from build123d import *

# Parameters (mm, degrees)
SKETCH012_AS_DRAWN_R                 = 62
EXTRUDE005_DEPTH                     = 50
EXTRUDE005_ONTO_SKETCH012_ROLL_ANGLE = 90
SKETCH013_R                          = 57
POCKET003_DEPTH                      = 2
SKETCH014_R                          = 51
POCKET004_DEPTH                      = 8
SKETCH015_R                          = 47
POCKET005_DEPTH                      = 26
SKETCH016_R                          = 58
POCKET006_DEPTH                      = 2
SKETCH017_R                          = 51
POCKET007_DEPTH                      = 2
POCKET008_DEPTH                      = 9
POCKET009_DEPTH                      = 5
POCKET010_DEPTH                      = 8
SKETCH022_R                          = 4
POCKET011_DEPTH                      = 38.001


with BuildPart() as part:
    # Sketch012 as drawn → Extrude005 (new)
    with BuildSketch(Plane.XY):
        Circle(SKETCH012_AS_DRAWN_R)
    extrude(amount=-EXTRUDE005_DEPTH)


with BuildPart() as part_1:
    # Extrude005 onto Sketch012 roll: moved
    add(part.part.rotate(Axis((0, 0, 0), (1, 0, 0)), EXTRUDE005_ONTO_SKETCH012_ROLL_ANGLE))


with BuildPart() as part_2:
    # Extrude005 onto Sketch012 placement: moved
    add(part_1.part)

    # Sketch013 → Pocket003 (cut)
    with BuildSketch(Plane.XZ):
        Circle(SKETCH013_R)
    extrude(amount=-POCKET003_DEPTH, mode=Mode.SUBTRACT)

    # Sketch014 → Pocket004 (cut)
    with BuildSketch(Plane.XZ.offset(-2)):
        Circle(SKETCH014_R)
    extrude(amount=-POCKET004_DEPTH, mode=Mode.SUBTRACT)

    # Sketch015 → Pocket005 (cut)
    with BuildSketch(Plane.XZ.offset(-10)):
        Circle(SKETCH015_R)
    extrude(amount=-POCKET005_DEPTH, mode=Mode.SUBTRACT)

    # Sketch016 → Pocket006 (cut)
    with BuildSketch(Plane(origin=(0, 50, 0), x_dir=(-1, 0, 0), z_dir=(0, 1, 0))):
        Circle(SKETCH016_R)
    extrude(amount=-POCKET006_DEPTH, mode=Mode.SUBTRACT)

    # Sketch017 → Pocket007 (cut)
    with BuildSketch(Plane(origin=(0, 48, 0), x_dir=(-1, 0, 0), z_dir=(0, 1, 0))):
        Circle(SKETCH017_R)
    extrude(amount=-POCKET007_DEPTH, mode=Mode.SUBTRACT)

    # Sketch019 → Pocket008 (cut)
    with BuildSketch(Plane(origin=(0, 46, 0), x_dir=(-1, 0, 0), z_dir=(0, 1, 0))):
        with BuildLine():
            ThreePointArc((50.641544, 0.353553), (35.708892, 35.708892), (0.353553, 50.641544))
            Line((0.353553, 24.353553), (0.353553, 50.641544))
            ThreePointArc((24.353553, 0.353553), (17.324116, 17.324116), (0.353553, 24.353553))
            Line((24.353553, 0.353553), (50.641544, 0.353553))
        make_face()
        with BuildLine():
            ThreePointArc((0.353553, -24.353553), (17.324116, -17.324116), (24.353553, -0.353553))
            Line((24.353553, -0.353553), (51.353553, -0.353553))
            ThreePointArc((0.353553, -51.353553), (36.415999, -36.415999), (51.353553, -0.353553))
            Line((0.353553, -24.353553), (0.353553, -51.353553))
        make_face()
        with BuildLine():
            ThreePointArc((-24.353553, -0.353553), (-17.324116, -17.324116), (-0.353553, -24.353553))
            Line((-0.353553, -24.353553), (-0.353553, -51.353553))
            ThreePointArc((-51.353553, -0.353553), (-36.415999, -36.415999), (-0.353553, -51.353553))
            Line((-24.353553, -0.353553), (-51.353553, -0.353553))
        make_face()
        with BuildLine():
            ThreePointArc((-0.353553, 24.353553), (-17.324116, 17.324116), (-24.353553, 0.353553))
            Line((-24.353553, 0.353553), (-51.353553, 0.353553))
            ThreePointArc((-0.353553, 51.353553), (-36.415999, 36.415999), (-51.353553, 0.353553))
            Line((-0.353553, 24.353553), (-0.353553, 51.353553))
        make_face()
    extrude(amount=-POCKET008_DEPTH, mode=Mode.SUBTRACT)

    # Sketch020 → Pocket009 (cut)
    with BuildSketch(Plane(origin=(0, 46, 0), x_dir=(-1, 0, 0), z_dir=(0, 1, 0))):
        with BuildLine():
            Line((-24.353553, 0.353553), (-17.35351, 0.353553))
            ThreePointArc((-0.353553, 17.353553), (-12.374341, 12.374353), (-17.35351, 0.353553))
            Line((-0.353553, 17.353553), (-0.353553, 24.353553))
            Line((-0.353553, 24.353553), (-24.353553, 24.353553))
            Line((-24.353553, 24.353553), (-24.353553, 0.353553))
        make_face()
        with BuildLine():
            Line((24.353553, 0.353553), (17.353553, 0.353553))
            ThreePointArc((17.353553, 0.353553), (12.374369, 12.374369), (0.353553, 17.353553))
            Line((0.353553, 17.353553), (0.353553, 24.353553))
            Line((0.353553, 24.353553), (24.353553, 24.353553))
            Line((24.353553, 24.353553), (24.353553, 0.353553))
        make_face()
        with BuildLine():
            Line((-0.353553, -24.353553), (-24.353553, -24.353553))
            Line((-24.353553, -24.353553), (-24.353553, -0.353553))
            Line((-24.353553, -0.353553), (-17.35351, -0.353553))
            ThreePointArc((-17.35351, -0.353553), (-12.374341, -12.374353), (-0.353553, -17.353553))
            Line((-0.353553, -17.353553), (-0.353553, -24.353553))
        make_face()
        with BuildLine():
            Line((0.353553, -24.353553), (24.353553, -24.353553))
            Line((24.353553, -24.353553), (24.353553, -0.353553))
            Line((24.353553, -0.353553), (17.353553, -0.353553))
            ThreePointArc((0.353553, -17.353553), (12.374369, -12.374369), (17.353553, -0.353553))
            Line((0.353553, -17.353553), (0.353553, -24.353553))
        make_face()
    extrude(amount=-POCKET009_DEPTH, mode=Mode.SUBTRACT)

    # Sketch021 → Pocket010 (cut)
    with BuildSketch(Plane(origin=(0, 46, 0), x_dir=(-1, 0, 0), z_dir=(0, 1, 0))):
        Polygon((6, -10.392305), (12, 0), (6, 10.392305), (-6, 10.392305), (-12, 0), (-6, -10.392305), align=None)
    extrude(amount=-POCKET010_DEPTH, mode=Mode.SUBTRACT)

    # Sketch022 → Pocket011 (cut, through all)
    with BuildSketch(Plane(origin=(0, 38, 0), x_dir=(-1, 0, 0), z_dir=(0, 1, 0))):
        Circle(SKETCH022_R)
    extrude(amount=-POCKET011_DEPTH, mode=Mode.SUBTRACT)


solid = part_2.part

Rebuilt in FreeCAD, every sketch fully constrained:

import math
import FreeCAD as App
import Part
import Sketcher
Q = App.Units.Quantity

doc = App.newDocument("Part")
params = doc.addObject("Spreadsheet::Sheet", "Params")
for row, (alias, value) in enumerate([
    ("sketch1_diameter", "124 mm"),
    ("pad1_length", "50 mm"),
    ("sketch2_diameter", "114 mm"),
    ("pocket1_length", "2 mm"),
    ("sketch3_diameter", "102 mm"),
    ("pocket2_length", "8 mm"),
    ("sketch4_diameter", "94 mm"),
    ("pocket3_length", "26 mm"),
    ("sketch5_diameter", "116 mm"),
    ("pocket4_length", "2 mm"),
    ("sketch6_diameter", "102 mm"),
    ("pocket5_length", "2 mm"),
    ("sketch7_radius", "51 mm"),
    ("sketch7_radius2", "23.999999 mm"),
    ("pocket6_length", "9 mm"),
    ("sketch8_radius", "16.999999 mm"),
    ("sketch8_width", "24 mm"),
    ("pocket7_length", "5 mm"),
    ("sketch9_width", "12 mm"),
    ("sketch9_length", "12 mm"),
    ("pocket8_length", "8 mm"),
    ("sketch10_diameter", "8 mm"),
], start=1):
    params.set(f"A{row}", alias)
    params.set(f"B{row}", "=" + value)
    params.setAlias(f"B{row}", alias)

body = doc.addObject("PartDesign::Body", "Body")

# Sketch on XY plane
sketch1 = doc.addObject("Sketcher::SketchObject", "Sketch")
body.addObject(sketch1)
sketch1.AttachmentSupport = (doc.XY_Plane, [""])
sketch1.MapMode = "FlatFace"
sketch1.addGeometry(Part.Circle(App.Vector(0, 0, 0), App.Vector(0, 0, 1), 62), False)
sketch1.addConstraint([
    Sketcher.Constraint("Coincident", 0, 3, -1, 1),
    Sketcher.Constraint("Diameter", 0, Q("124 mm")),
])
sketch1.setExpression("Constraints[1]", "Params.sketch1_diameter")
pad1 = doc.addObject("PartDesign::Pad", "Pad")
body.addObject(pad1)
pad1.Profile = sketch1
pad1.setExpression("Length", "Params.pad1_length")
pad1.Reversed = True
body2 = doc.addObject("PartDesign::Body", "Body001")
doc.recompute()

body.Placement = App.Placement(App.Vector(0, 0, 0), App.Rotation(App.Vector(1, 0, 0), 90))
boolean = doc.addObject("PartDesign::Boolean", "Boolean")
body2.addObject(boolean)
boolean.Type = "Fuse"
boolean.addObjects([body])

# Sketch on XZ plane
sketch2 = doc.addObject("Sketcher::SketchObject", "Sketch001")
body2.addObject(sketch2)
sketch2.AttachmentSupport = (doc.getObject("XZ_Plane001"), [""])
sketch2.MapMode = "FlatFace"
sketch2.addGeometry(Part.Circle(App.Vector(0, 0, 0), App.Vector(0, 0, 1), 57), False)
sketch2.addConstraint([
    Sketcher.Constraint("Coincident", 0, 3, -1, 1),
    Sketcher.Constraint("Diameter", 0, Q("114 mm")),
])
sketch2.setExpression("Constraints[1]", "Params.sketch2_diameter")
pocket1 = doc.addObject("PartDesign::Pocket", "Pocket")
body2.addObject(pocket1)
pocket1.Profile = sketch2
pocket1.setExpression("Length", "Params.pocket1_length")

# Sketch on XZ plane
sketch3 = doc.addObject("Sketcher::SketchObject", "Sketch002")
body2.addObject(sketch3)
sketch3.AttachmentSupport = (doc.getObject("XZ_Plane001"), [""])
sketch3.MapMode = "FlatFace"
sketch3.AttachmentOffset = App.Placement(App.Vector(0, 0, -2), App.Rotation())
sketch3.addGeometry(Part.Circle(App.Vector(0, 0, 0), App.Vector(0, 0, 1), 51), False)
sketch3.addConstraint([
    Sketcher.Constraint("Coincident", 0, 3, -1, 1),
    Sketcher.Constraint("Diameter", 0, Q("102 mm")),
])
sketch3.setExpression("Constraints[1]", "Params.sketch3_diameter")
pocket2 = doc.addObject("PartDesign::Pocket", "Pocket001")
body2.addObject(pocket2)
pocket2.Profile = sketch3
pocket2.setExpression("Length", "Params.pocket2_length")

# Sketch on XZ plane
sketch4 = doc.addObject("Sketcher::SketchObject", "Sketch003")
body2.addObject(sketch4)
sketch4.AttachmentSupport = (doc.getObject("XZ_Plane001"), [""])
sketch4.MapMode = "FlatFace"
sketch4.AttachmentOffset = App.Placement(App.Vector(0, 0, -10), App.Rotation())
sketch4.addGeometry(Part.Circle(App.Vector(0, 0, 0), App.Vector(0, 0, 1), 47), False)
sketch4.addConstraint([
    Sketcher.Constraint("Coincident", 0, 3, -1, 1),
    Sketcher.Constraint("Diameter", 0, Q("94 mm")),
])
sketch4.setExpression("Constraints[1]", "Params.sketch4_diameter")
pocket3 = doc.addObject("PartDesign::Pocket", "Pocket002")
body2.addObject(pocket3)
pocket3.Profile = sketch4
pocket3.setExpression("Length", "Params.pocket3_length")

# Sketch on XZ plane
sketch5 = doc.addObject("Sketcher::SketchObject", "Sketch004")
body2.addObject(sketch5)
sketch5.AttachmentSupport = (doc.getObject("XZ_Plane001"), [""])
sketch5.MapMode = "FlatFace"
sketch5.AttachmentOffset = App.Placement(App.Vector(0, 0, -50), App.Rotation())
sketch5.addGeometry(Part.Circle(App.Vector(0, 0, 0), App.Vector(0, 0, 1), 58), False)
sketch5.addConstraint([
    Sketcher.Constraint("Coincident", 0, 3, -1, 1),
    Sketcher.Constraint("Diameter", 0, Q("116 mm")),
])
sketch5.setExpression("Constraints[1]", "Params.sketch5_diameter")
pocket4 = doc.addObject("PartDesign::Pocket", "Pocket003")
body2.addObject(pocket4)
pocket4.Profile = sketch5
pocket4.setExpression("Length", "Params.pocket4_length")
pocket4.Reversed = True

# Sketch on XZ plane
sketch6 = doc.addObject("Sketcher::SketchObject", "Sketch005")
body2.addObject(sketch6)
sketch6.AttachmentSupport = (doc.getObject("XZ_Plane001"), [""])
sketch6.MapMode = "FlatFace"
sketch6.AttachmentOffset = App.Placement(App.Vector(0, 0, -48), App.Rotation())
sketch6.addGeometry(Part.Circle(App.Vector(0, 0, 0), App.Vector(0, 0, 1), 51), False)
sketch6.addConstraint([
    Sketcher.Constraint("Coincident", 0, 3, -1, 1),
    Sketcher.Constraint("Diameter", 0, Q("102 mm")),
])
sketch6.setExpression("Constraints[1]", "Params.sketch6_diameter")
pocket5 = doc.addObject("PartDesign::Pocket", "Pocket004")
body2.addObject(pocket5)
pocket5.Profile = sketch6
pocket5.setExpression("Length", "Params.pocket5_length")
pocket5.Reversed = True

# Sketch on XZ plane
sketch7 = doc.addObject("Sketcher::SketchObject", "Sketch006")
body2.addObject(sketch7)
sketch7.AttachmentSupport = (doc.getObject("XZ_Plane001"), [""])
sketch7.MapMode = "FlatFace"
sketch7.AttachmentOffset = App.Placement(App.Vector(0, 0, -46), App.Rotation())
sketch7.addGeometry([
    Part.ArcOfCircle(Part.Circle(App.Vector(0.353554, -0.353554, 0), App.Vector(0, 0, 1), 51), math.radians(90.794422), math.radians(179.205578)),  # 0
    Part.LineSegment(App.Vector(-0.353553, 50.641544, 0), App.Vector(-0.353553, 24.353553, 0)),  # 1
    Part.ArcOfCircle(Part.Circle(App.Vector(-0.353554, 0.353554, 0), App.Vector(0, 0, 1), 23.999999), math.radians(89.999998), math.radians(180.000002)),  # 2
    Part.LineSegment(App.Vector(-24.353553, 0.353553, 0), App.Vector(-50.641544, 0.353553, 0)),  # 3
    Part.ArcOfCircle(Part.Circle(App.Vector(-0.353554, -0.353554, 0), App.Vector(0, 0, 1), 23.999999), math.radians(179.999998), math.radians(270.000002)),  # 4
    Part.LineSegment(App.Vector(-0.353553, -24.353553, 0), App.Vector(-0.353553, -51.353553, 0)),  # 5
    Part.ArcOfCircle(Part.Circle(App.Vector(-0.353554, -0.353554, 0), App.Vector(0, 0, 1), 50.999999), math.radians(179.999999), math.radians(270.000001)),  # 6
    Part.LineSegment(App.Vector(-51.353553, -0.353553, 0), App.Vector(-24.353553, -0.353553, 0)),  # 7
    Part.ArcOfCircle(Part.Circle(App.Vector(0.353554, -0.353554, 0), App.Vector(0, 0, 1), 23.999999), math.radians(-90.000002), math.radians(0.000002)),  # 8
    Part.LineSegment(App.Vector(24.353553, -0.353553, 0), App.Vector(51.353553, -0.353553, 0)),  # 9
    Part.ArcOfCircle(Part.Circle(App.Vector(0.353554, -0.353554, 0), App.Vector(0, 0, 1), 50.999999), math.radians(-90.000001), math.radians(0.000001)),  # 10
    Part.LineSegment(App.Vector(0.353553, -51.353553, 0), App.Vector(0.353553, -24.353553, 0)),  # 11
    Part.ArcOfCircle(Part.Circle(App.Vector(0.353554, 0.353554, 0), App.Vector(0, 0, 1), 23.999999), math.radians(-0.000002), math.radians(90.000002)),  # 12
    Part.LineSegment(App.Vector(0.353553, 24.353553, 0), App.Vector(0.353553, 51.353553, 0)),  # 13
    Part.ArcOfCircle(Part.Circle(App.Vector(0.353554, 0.353554, 0), App.Vector(0, 0, 1), 50.999999), math.radians(-0.000001), math.radians(90.000001)),  # 14
    Part.LineSegment(App.Vector(51.353553, 0.353553, 0), App.Vector(24.353553, 0.353553, 0)),  # 15
], False)
sketch7.addConstraint([
    Sketcher.Constraint("Coincident", 0, 1, 1, 1),
    Sketcher.Constraint("Coincident", 1, 2, 2, 1),
    Sketcher.Constraint("Coincident", 2, 2, 3, 1),
    Sketcher.Constraint("Coincident", 3, 2, 0, 2),
    Sketcher.Constraint("Coincident", 4, 2, 5, 1),
    Sketcher.Constraint("Coincident", 5, 2, 6, 2),
    Sketcher.Constraint("Coincident", 6, 1, 7, 1),
    Sketcher.Constraint("Coincident", 7, 2, 4, 1),
    Sketcher.Constraint("Coincident", 8, 2, 9, 1),
    Sketcher.Constraint("Coincident", 9, 2, 10, 2),
    Sketcher.Constraint("Coincident", 10, 1, 11, 1),
    Sketcher.Constraint("Coincident", 11, 2, 8, 1),
    Sketcher.Constraint("Coincident", 12, 2, 13, 1),
    Sketcher.Constraint("Coincident", 13, 2, 14, 2),
    Sketcher.Constraint("Coincident", 14, 1, 15, 1),
    Sketcher.Constraint("Coincident", 15, 2, 12, 1),
    Sketcher.Constraint("Vertical", 1),
    Sketcher.Constraint("Horizontal", 3),
    Sketcher.Constraint("Vertical", 5),
    Sketcher.Constraint("Horizontal", 7),
    Sketcher.Constraint("Horizontal", 9),
    Sketcher.Constraint("Vertical", 11),
    Sketcher.Constraint("Vertical", 13),
    Sketcher.Constraint("Horizontal", 15),
    Sketcher.Constraint("Coincident", 6, 3, 4, 3),
    Sketcher.Constraint("Coincident", 8, 3, 0, 3),
    Sketcher.Constraint("Coincident", 10, 3, 0, 3),
    Sketcher.Constraint("Coincident", 14, 3, 12, 3),
    Sketcher.Constraint("Equal", 2, 4),
    Sketcher.Constraint("Equal", 0, 6),
    Sketcher.Constraint("Equal", 4, 8),
    Sketcher.Constraint("Equal", 6, 10),
    Sketcher.Constraint("Equal", 8, 12),
    Sketcher.Constraint("Equal", 10, 14),
    Sketcher.Constraint("Symmetric", 0, 3, 2, 3, -1, 1),
    Sketcher.Constraint("Symmetric", 4, 3, 12, 3, -1, 1),
    Sketcher.Constraint("Symmetric", 0, 3, 4, 3, -2),
    Sketcher.Constraint("Horizontal", 14, 3, 2, 2),
    Sketcher.Constraint("Horizontal", 10, 3, 6, 1),
    Sketcher.Constraint("Horizontal", 7, 2, 8, 2),
    Sketcher.Constraint("Horizontal", 3, 2, 14, 1),
    Sketcher.Constraint("Vertical", 6, 3, 0, 1),
    Sketcher.Constraint("Vertical", 1, 2, 4, 2),
    Sketcher.Constraint("Vertical", 14, 3, 10, 1),
    Sketcher.Constraint("Vertical", 11, 2, 12, 2),
    Sketcher.Constraint("Equal", 3, 1),
    Sketcher.Constraint("Radius", 0, Q("51 mm")),
    Sketcher.Constraint("Radius", 2, Q("23.999999 mm")),
    Sketcher.Constraint("DistanceX", 3, 2, 3, 1, Q("26.287991 mm")),
])
sketch7.setExpression("Constraints[46]", "Params.sketch7_radius")
sketch7.setExpression("Constraints[47]", "Params.sketch7_radius2")
pocket6 = doc.addObject("PartDesign::Pocket", "Pocket005")
body2.addObject(pocket6)
pocket6.Profile = sketch7
pocket6.setExpression("Length", "Params.pocket6_length")
pocket6.Reversed = True

# Sketch on XZ plane
sketch8 = doc.addObject("Sketcher::SketchObject", "Sketch007")
body2.addObject(sketch8)
sketch8.AttachmentSupport = (doc.getObject("XZ_Plane001"), [""])
sketch8.MapMode = "FlatFace"
sketch8.AttachmentOffset = App.Placement(App.Vector(0, 0, -46), App.Rotation())
sketch8.addGeometry([
    Part.LineSegment(App.Vector(24.353553, 0.353553, 0), App.Vector(17.35351, 0.353553, 0)),  # 0
    Part.ArcOfCircle(Part.Circle(App.Vector(0.353511, 0.353554, 0), App.Vector(0, 0, 1), 16.999999), math.radians(-0.000003), math.radians(89.999858)),  # 1
    Part.LineSegment(App.Vector(0.353553, 17.353553, 0), App.Vector(0.353553, 24.353553, 0)),  # 2
    Part.LineSegment(App.Vector(0.353553, 24.353553, 0), App.Vector(24.353553, 24.353553, 0)),  # 3
    Part.LineSegment(App.Vector(24.353553, 24.353553, 0), App.Vector(24.353553, 0.353553, 0)),  # 4
    Part.LineSegment(App.Vector(-17.353553, 0.353553, 0), App.Vector(-24.353553, 0.353553, 0)),  # 5
    Part.LineSegment(App.Vector(-24.353553, 0.353553, 0), App.Vector(-24.353553, 24.353553, 0)),  # 6
    Part.LineSegment(App.Vector(-24.353553, 24.353553, 0), App.Vector(-0.353553, 24.353553, 0)),  # 7
    Part.LineSegment(App.Vector(-0.353553, 24.353553, 0), App.Vector(-0.353553, 17.353553, 0)),  # 8
    Part.ArcOfCircle(Part.Circle(App.Vector(-0.353555, 0.353555, 0), App.Vector(0, 0, 1), 16.999998), math.radians(89.999992), math.radians(180.000008)),  # 9
    Part.LineSegment(App.Vector(24.353553, -24.353553, 0), App.Vector(0.353553, -24.353553, 0)),  # 10
    Part.LineSegment(App.Vector(0.353553, -24.353553, 0), App.Vector(0.353553, -17.353553, 0)),  # 11
    Part.ArcOfCircle(Part.Circle(App.Vector(0.353511, -0.353554, 0), App.Vector(0, 0, 1), 16.999999), math.radians(-89.999858), math.radians(0.000003)),  # 12
    Part.LineSegment(App.Vector(17.35351, -0.353553, 0), App.Vector(24.353553, -0.353553, 0)),  # 13
    Part.LineSegment(App.Vector(24.353553, -0.353553, 0), App.Vector(24.353553, -24.353553, 0)),  # 14
    Part.LineSegment(App.Vector(-0.353553, -24.353553, 0), App.Vector(-24.353553, -24.353553, 0)),  # 15
    Part.LineSegment(App.Vector(-24.353553, -24.353553, 0), App.Vector(-24.353553, -0.353553, 0)),  # 16
    Part.LineSegment(App.Vector(-24.353553, -0.353553, 0), App.Vector(-17.353553, -0.353553, 0)),  # 17
    Part.ArcOfCircle(Part.Circle(App.Vector(-0.353555, -0.353555, 0), App.Vector(0, 0, 1), 16.999998), math.radians(179.999992), math.radians(270.000008)),  # 18
    Part.LineSegment(App.Vector(-0.353553, -17.353553, 0), App.Vector(-0.353553, -24.353553, 0)),  # 19
], False)
sketch8.addConstraint([
    Sketcher.Constraint("Coincident", 0, 2, 1, 1),
    Sketcher.Constraint("Coincident", 1, 2, 2, 1),
    Sketcher.Constraint("Coincident", 2, 2, 3, 1),
    Sketcher.Constraint("Coincident", 3, 2, 4, 1),
    Sketcher.Constraint("Coincident", 4, 2, 0, 1),
    Sketcher.Constraint("Coincident", 5, 2, 6, 1),
    Sketcher.Constraint("Coincident", 6, 2, 7, 1),
    Sketcher.Constraint("Coincident", 7, 2, 8, 1),
    Sketcher.Constraint("Coincident", 8, 2, 9, 1),
    Sketcher.Constraint("Coincident", 9, 2, 5, 1),
    Sketcher.Constraint("Coincident", 10, 2, 11, 1),
    Sketcher.Constraint("Coincident", 11, 2, 12, 1),
    Sketcher.Constraint("Coincident", 12, 2, 13, 1),
    Sketcher.Constraint("Coincident", 13, 2, 14, 1),
    Sketcher.Constraint("Coincident", 14, 2, 10, 1),
    Sketcher.Constraint("Coincident", 15, 2, 16, 1),
    Sketcher.Constraint("Coincident", 16, 2, 17, 1),
    Sketcher.Constraint("Coincident", 17, 2, 18, 1),
    Sketcher.Constraint("Coincident", 18, 2, 19, 1),
    Sketcher.Constraint("Coincident", 19, 2, 15, 1),
    Sketcher.Constraint("Horizontal", 0),
    Sketcher.Constraint("Vertical", 2),
    Sketcher.Constraint("Horizontal", 3),
    Sketcher.Constraint("Vertical", 4),
    Sketcher.Constraint("Horizontal", 5),
    Sketcher.Constraint("Vertical", 6),
    Sketcher.Constraint("Horizontal", 7),
    Sketcher.Constraint("Vertical", 8),
    Sketcher.Constraint("Horizontal", 10),
    Sketcher.Constraint("Vertical", 11),
    Sketcher.Constraint("Horizontal", 13),
    Sketcher.Constraint("Vertical", 14),
    Sketcher.Constraint("Horizontal", 15),
    Sketcher.Constraint("Vertical", 16),
    Sketcher.Constraint("Horizontal", 17),
    Sketcher.Constraint("Vertical", 19),
    Sketcher.Constraint("Equal", 1, 9),
    Sketcher.Constraint("Equal", 9, 12),
    Sketcher.Constraint("Equal", 12, 18),
    Sketcher.Constraint("Symmetric", 7, 2, 10, 2, -1, 1),
    Sketcher.Constraint("Symmetric", 5, 2, 13, 2, -1, 1),
    Sketcher.Constraint("Symmetric", 3, 2, 15, 2, -1, 1),
    Sketcher.Constraint("Symmetric", 1, 2, 18, 2, -1, 1),
    Sketcher.Constraint("Symmetric", 4, 2, 5, 2, -2),
    Sketcher.Constraint("Symmetric", 2, 2, 7, 2, -2),
    Sketcher.Constraint("Symmetric", 1, 3, 12, 3, -1),
    Sketcher.Constraint("Symmetric", 9, 3, 18, 3, -1),
    Sketcher.Constraint("Horizontal", 1, 3, 0, 2),
    Sketcher.Constraint("Horizontal", 13, 2, 16, 2),
    Sketcher.Constraint("Equal", 17, 2),
    Sketcher.Constraint("Equal", 15, 4),
    Sketcher.Constraint("Radius", 1, Q("16.999999 mm")),
    Sketcher.Constraint("DistanceX", 3, 1, 3, 2, Q("24 mm")),
    Sketcher.Constraint("DistanceX", 0, 2, 0, 1, Q("7.000043 mm")),
    Sketcher.Constraint("DistanceX", -1, 1, 1, 3, Q("0.353511 mm")),
    Sketcher.Constraint("DistanceY", 12, 3, 9, 3, Q("0.707109 mm")),
])
sketch8.setExpression("Constraints[51]", "Params.sketch8_radius")
sketch8.setExpression("Constraints[52]", "Params.sketch8_width")
pocket7 = doc.addObject("PartDesign::Pocket", "Pocket006")
body2.addObject(pocket7)
pocket7.Profile = sketch8
pocket7.setExpression("Length", "Params.pocket7_length")
pocket7.Reversed = True

# Sketch on XZ plane
sketch9 = doc.addObject("Sketcher::SketchObject", "Sketch008")
body2.addObject(sketch9)
sketch9.AttachmentSupport = (doc.getObject("XZ_Plane001"), [""])
sketch9.MapMode = "FlatFace"
sketch9.AttachmentOffset = App.Placement(App.Vector(0, 0, -46), App.Rotation())
sketch9.addGeometry([
    Part.LineSegment(App.Vector(-6, -10, 0), App.Vector(-12, 0, 0)),  # 0
    Part.LineSegment(App.Vector(-12, 0, 0), App.Vector(-6, 10, 0)),  # 1
    Part.LineSegment(App.Vector(-6, 10, 0), App.Vector(6, 10, 0)),  # 2
    Part.LineSegment(App.Vector(6, 10, 0), App.Vector(12, 0, 0)),  # 3
    Part.LineSegment(App.Vector(12, 0, 0), App.Vector(6, -10, 0)),  # 4
    Part.LineSegment(App.Vector(6, -10, 0), App.Vector(-6, -10, 0)),  # 5
], False)
sketch9.addConstraint([
    Sketcher.Constraint("Coincident", 0, 2, 1, 1),
    Sketcher.Constraint("Coincident", 1, 2, 2, 1),
    Sketcher.Constraint("Coincident", 2, 2, 3, 1),
    Sketcher.Constraint("Coincident", 3, 2, 4, 1),
    Sketcher.Constraint("Coincident", 4, 2, 5, 1),
    Sketcher.Constraint("Coincident", 5, 2, 0, 1),
    Sketcher.Constraint("Horizontal", 2),
    Sketcher.Constraint("Horizontal", 5),
    Sketcher.Constraint("Symmetric", 0, 2, 3, 2, -1, 1),
    Sketcher.Constraint("Symmetric", 1, 2, 4, 2, -1, 1),
    Sketcher.Constraint("PointOnObject", 0, 2, -1),
    Sketcher.Constraint("Parallel", 0, 3),
    Sketcher.Constraint("Vertical", 2, 2, 4, 2),
    Sketcher.Constraint("DistanceX", 2, 1, 2, 2, Q("12 mm")),
    Sketcher.Constraint("Angle", 0, Q("120 deg")),
    Sketcher.Constraint("Distance", 0, Q("12 mm")),
])
sketch9.setExpression("Constraints[13]", "Params.sketch9_width")
sketch9.setExpression("Constraints[15]", "Params.sketch9_length")
pocket8 = doc.addObject("PartDesign::Pocket", "Pocket007")
body2.addObject(pocket8)
pocket8.Profile = sketch9
pocket8.setExpression("Length", "Params.pocket8_length")
pocket8.Reversed = True

# Sketch on XZ plane
sketch10 = doc.addObject("Sketcher::SketchObject", "Sketch009")
body2.addObject(sketch10)
sketch10.AttachmentSupport = (doc.getObject("XZ_Plane001"), [""])
sketch10.MapMode = "FlatFace"
sketch10.AttachmentOffset = App.Placement(App.Vector(0, 0, -38), App.Rotation())
sketch10.addGeometry(Part.Circle(App.Vector(0, 0, 0), App.Vector(0, 0, 1), 4), False)
sketch10.addConstraint([
    Sketcher.Constraint("Coincident", 0, 3, -1, 1),
    Sketcher.Constraint("Diameter", 0, Q("8 mm")),
])
sketch10.setExpression("Constraints[1]", "Params.sketch10_diameter")
pocket9 = doc.addObject("PartDesign::Pocket", "Pocket008")
body2.addObject(pocket9)
pocket9.Profile = sketch10
pocket9.Type = "ThroughAll"
pocket9.Reversed = True

doc.recompute()
